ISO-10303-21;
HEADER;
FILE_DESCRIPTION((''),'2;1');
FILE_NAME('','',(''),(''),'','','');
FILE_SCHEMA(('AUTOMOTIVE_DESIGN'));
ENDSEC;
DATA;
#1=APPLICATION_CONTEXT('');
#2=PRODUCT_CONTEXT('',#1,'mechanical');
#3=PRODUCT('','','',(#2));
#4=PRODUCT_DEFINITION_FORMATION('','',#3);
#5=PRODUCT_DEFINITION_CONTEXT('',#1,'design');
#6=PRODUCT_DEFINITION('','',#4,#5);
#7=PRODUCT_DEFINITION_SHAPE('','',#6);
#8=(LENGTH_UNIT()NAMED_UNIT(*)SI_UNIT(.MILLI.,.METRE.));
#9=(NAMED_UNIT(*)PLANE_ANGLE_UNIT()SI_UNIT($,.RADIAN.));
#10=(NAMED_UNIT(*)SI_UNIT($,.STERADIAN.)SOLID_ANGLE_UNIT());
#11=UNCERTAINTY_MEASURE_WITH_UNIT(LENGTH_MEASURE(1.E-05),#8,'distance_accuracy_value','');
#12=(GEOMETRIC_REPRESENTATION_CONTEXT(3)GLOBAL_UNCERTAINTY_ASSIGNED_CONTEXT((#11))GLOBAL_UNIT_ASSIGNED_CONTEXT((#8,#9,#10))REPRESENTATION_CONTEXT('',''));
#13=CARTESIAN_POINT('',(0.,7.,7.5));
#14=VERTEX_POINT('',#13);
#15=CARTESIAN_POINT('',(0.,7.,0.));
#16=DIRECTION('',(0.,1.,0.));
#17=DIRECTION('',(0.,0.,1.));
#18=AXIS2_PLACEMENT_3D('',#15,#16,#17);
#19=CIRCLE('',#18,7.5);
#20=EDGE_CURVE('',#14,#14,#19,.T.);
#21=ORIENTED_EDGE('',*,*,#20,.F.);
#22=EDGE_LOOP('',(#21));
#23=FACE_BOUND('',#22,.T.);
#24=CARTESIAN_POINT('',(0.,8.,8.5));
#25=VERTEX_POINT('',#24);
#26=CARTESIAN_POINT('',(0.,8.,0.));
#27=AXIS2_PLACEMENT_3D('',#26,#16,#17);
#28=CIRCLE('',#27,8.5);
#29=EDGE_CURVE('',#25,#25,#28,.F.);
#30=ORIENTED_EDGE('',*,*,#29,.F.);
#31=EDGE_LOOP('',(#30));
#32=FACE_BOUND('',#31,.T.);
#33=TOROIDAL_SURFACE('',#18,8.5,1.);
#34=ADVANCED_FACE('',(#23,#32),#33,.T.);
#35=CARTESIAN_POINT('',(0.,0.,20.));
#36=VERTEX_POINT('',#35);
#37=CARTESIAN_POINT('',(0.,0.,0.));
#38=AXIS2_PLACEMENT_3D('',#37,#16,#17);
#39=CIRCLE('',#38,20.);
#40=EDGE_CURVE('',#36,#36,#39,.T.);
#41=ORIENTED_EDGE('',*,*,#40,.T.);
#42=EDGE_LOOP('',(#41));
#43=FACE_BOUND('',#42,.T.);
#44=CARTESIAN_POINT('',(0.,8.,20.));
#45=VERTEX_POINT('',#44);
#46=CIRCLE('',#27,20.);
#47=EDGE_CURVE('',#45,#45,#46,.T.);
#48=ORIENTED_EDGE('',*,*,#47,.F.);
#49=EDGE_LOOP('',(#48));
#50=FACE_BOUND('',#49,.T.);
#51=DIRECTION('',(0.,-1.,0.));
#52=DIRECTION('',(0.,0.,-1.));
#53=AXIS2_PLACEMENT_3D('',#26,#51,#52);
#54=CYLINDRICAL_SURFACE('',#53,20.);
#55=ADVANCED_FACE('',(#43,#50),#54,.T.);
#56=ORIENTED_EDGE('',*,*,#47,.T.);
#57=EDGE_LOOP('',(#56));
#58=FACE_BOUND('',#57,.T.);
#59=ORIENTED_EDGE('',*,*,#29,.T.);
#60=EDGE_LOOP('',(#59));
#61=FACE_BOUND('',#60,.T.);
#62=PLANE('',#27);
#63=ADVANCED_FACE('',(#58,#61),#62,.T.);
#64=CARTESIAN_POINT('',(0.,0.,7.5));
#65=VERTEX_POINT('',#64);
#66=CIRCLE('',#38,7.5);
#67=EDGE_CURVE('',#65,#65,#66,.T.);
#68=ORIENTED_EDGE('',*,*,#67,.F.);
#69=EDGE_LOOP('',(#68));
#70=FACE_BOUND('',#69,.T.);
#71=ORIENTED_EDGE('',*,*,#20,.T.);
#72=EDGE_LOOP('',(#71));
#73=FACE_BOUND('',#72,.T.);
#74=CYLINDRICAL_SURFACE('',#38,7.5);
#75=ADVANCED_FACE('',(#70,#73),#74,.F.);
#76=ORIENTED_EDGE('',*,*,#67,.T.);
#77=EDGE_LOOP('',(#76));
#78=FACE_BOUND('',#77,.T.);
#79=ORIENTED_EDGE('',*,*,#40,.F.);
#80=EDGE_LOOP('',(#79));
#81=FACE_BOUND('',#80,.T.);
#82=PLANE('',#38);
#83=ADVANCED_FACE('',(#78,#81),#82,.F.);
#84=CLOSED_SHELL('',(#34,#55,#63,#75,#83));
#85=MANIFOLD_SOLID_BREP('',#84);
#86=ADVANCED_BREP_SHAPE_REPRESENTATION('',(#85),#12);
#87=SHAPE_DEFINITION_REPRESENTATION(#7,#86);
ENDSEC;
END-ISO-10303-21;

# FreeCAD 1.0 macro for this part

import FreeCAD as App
import Part
import Sketcher

V = App.Vector


def edges_at(feature, points):
    """Names of the edges that pass closest to the given points."""
    edges = feature.Shape.Edges
    near = lambda p: min(range(len(edges)), key=lambda i: edges[i].distToShape(Part.Vertex(*p))[0])
    return sorted({f"Edge{near(p) + 1}" for p in points})

doc = App.newDocument("Part")
params = doc.addObject("Spreadsheet::Sheet", "Params")
for row, (alias, value) in enumerate([
    ("sketch1_diameter", "40 mm"),
    ("pad1_length", "8 mm"),
    ("sketch2_diameter", "15 mm"),
    ("fillet_radius", "1 mm"),
], start=1):
    params.set(f"A{row}", alias)
    params.set(f"B{row}", "=" + value)
    params.setAlias(f"B{row}", alias)

body = doc.addObject("PartDesign::Body", "Body")

sketch1 = body.newObject("Sketcher::SketchObject", "Sketch")
sketch1.AttachmentSupport = (doc.getObject("XZ_Plane"), [""])
sketch1.MapMode = "FlatFace"
sketch1.addGeometry(Part.Circle(V(0, 0, 0), V(0, 0, 1), 20), False)
sketch1.addConstraint([
    Sketcher.Constraint("Coincident", 0, 3, -1, 1),
    Sketcher.Constraint("Diameter", 0, 40.0),
])
sketch1.setExpression("Constraints[1]", "Params.sketch1_diameter")
pad1 = body.newObject("PartDesign::Pad", "Pad")
pad1.Profile = sketch1
pad1.setExpression("Length", "Params.pad1_length")
pad1.Reversed = True

sketch2 = body.newObject("Sketcher::SketchObject", "Sketch001")
sketch2.AttachmentSupport = (doc.getObject("XZ_Plane"), [""])
sketch2.MapMode = "FlatFace"
sketch2.AttachmentOffset = App.Placement(V(0, 0, -8), App.Rotation())
sketch2.addGeometry(Part.Circle(V(0, 0, 0), V(0, 0, 1), 7.5), False)
sketch2.addConstraint([
    Sketcher.Constraint("Coincident", 0, 3, -1, 1),
    Sketcher.Constraint("Diameter", 0, 15.0),
])
sketch2.setExpression("Constraints[1]", "Params.sketch2_diameter")
pocket1 = body.newObject("PartDesign::Pocket", "Pocket")
pocket1.Profile = sketch2
pocket1.Type = "ThroughAll"
pocket1.Reversed = True
doc.recompute()

fillet = body.newObject("PartDesign::Fillet", "Fillet")
fillet.Base = (pocket1, edges_at(pocket1, [(-7.5, 8, 0)]))
fillet.setExpression("Radius", "Params.fillet_radius")

doc.recompute()
